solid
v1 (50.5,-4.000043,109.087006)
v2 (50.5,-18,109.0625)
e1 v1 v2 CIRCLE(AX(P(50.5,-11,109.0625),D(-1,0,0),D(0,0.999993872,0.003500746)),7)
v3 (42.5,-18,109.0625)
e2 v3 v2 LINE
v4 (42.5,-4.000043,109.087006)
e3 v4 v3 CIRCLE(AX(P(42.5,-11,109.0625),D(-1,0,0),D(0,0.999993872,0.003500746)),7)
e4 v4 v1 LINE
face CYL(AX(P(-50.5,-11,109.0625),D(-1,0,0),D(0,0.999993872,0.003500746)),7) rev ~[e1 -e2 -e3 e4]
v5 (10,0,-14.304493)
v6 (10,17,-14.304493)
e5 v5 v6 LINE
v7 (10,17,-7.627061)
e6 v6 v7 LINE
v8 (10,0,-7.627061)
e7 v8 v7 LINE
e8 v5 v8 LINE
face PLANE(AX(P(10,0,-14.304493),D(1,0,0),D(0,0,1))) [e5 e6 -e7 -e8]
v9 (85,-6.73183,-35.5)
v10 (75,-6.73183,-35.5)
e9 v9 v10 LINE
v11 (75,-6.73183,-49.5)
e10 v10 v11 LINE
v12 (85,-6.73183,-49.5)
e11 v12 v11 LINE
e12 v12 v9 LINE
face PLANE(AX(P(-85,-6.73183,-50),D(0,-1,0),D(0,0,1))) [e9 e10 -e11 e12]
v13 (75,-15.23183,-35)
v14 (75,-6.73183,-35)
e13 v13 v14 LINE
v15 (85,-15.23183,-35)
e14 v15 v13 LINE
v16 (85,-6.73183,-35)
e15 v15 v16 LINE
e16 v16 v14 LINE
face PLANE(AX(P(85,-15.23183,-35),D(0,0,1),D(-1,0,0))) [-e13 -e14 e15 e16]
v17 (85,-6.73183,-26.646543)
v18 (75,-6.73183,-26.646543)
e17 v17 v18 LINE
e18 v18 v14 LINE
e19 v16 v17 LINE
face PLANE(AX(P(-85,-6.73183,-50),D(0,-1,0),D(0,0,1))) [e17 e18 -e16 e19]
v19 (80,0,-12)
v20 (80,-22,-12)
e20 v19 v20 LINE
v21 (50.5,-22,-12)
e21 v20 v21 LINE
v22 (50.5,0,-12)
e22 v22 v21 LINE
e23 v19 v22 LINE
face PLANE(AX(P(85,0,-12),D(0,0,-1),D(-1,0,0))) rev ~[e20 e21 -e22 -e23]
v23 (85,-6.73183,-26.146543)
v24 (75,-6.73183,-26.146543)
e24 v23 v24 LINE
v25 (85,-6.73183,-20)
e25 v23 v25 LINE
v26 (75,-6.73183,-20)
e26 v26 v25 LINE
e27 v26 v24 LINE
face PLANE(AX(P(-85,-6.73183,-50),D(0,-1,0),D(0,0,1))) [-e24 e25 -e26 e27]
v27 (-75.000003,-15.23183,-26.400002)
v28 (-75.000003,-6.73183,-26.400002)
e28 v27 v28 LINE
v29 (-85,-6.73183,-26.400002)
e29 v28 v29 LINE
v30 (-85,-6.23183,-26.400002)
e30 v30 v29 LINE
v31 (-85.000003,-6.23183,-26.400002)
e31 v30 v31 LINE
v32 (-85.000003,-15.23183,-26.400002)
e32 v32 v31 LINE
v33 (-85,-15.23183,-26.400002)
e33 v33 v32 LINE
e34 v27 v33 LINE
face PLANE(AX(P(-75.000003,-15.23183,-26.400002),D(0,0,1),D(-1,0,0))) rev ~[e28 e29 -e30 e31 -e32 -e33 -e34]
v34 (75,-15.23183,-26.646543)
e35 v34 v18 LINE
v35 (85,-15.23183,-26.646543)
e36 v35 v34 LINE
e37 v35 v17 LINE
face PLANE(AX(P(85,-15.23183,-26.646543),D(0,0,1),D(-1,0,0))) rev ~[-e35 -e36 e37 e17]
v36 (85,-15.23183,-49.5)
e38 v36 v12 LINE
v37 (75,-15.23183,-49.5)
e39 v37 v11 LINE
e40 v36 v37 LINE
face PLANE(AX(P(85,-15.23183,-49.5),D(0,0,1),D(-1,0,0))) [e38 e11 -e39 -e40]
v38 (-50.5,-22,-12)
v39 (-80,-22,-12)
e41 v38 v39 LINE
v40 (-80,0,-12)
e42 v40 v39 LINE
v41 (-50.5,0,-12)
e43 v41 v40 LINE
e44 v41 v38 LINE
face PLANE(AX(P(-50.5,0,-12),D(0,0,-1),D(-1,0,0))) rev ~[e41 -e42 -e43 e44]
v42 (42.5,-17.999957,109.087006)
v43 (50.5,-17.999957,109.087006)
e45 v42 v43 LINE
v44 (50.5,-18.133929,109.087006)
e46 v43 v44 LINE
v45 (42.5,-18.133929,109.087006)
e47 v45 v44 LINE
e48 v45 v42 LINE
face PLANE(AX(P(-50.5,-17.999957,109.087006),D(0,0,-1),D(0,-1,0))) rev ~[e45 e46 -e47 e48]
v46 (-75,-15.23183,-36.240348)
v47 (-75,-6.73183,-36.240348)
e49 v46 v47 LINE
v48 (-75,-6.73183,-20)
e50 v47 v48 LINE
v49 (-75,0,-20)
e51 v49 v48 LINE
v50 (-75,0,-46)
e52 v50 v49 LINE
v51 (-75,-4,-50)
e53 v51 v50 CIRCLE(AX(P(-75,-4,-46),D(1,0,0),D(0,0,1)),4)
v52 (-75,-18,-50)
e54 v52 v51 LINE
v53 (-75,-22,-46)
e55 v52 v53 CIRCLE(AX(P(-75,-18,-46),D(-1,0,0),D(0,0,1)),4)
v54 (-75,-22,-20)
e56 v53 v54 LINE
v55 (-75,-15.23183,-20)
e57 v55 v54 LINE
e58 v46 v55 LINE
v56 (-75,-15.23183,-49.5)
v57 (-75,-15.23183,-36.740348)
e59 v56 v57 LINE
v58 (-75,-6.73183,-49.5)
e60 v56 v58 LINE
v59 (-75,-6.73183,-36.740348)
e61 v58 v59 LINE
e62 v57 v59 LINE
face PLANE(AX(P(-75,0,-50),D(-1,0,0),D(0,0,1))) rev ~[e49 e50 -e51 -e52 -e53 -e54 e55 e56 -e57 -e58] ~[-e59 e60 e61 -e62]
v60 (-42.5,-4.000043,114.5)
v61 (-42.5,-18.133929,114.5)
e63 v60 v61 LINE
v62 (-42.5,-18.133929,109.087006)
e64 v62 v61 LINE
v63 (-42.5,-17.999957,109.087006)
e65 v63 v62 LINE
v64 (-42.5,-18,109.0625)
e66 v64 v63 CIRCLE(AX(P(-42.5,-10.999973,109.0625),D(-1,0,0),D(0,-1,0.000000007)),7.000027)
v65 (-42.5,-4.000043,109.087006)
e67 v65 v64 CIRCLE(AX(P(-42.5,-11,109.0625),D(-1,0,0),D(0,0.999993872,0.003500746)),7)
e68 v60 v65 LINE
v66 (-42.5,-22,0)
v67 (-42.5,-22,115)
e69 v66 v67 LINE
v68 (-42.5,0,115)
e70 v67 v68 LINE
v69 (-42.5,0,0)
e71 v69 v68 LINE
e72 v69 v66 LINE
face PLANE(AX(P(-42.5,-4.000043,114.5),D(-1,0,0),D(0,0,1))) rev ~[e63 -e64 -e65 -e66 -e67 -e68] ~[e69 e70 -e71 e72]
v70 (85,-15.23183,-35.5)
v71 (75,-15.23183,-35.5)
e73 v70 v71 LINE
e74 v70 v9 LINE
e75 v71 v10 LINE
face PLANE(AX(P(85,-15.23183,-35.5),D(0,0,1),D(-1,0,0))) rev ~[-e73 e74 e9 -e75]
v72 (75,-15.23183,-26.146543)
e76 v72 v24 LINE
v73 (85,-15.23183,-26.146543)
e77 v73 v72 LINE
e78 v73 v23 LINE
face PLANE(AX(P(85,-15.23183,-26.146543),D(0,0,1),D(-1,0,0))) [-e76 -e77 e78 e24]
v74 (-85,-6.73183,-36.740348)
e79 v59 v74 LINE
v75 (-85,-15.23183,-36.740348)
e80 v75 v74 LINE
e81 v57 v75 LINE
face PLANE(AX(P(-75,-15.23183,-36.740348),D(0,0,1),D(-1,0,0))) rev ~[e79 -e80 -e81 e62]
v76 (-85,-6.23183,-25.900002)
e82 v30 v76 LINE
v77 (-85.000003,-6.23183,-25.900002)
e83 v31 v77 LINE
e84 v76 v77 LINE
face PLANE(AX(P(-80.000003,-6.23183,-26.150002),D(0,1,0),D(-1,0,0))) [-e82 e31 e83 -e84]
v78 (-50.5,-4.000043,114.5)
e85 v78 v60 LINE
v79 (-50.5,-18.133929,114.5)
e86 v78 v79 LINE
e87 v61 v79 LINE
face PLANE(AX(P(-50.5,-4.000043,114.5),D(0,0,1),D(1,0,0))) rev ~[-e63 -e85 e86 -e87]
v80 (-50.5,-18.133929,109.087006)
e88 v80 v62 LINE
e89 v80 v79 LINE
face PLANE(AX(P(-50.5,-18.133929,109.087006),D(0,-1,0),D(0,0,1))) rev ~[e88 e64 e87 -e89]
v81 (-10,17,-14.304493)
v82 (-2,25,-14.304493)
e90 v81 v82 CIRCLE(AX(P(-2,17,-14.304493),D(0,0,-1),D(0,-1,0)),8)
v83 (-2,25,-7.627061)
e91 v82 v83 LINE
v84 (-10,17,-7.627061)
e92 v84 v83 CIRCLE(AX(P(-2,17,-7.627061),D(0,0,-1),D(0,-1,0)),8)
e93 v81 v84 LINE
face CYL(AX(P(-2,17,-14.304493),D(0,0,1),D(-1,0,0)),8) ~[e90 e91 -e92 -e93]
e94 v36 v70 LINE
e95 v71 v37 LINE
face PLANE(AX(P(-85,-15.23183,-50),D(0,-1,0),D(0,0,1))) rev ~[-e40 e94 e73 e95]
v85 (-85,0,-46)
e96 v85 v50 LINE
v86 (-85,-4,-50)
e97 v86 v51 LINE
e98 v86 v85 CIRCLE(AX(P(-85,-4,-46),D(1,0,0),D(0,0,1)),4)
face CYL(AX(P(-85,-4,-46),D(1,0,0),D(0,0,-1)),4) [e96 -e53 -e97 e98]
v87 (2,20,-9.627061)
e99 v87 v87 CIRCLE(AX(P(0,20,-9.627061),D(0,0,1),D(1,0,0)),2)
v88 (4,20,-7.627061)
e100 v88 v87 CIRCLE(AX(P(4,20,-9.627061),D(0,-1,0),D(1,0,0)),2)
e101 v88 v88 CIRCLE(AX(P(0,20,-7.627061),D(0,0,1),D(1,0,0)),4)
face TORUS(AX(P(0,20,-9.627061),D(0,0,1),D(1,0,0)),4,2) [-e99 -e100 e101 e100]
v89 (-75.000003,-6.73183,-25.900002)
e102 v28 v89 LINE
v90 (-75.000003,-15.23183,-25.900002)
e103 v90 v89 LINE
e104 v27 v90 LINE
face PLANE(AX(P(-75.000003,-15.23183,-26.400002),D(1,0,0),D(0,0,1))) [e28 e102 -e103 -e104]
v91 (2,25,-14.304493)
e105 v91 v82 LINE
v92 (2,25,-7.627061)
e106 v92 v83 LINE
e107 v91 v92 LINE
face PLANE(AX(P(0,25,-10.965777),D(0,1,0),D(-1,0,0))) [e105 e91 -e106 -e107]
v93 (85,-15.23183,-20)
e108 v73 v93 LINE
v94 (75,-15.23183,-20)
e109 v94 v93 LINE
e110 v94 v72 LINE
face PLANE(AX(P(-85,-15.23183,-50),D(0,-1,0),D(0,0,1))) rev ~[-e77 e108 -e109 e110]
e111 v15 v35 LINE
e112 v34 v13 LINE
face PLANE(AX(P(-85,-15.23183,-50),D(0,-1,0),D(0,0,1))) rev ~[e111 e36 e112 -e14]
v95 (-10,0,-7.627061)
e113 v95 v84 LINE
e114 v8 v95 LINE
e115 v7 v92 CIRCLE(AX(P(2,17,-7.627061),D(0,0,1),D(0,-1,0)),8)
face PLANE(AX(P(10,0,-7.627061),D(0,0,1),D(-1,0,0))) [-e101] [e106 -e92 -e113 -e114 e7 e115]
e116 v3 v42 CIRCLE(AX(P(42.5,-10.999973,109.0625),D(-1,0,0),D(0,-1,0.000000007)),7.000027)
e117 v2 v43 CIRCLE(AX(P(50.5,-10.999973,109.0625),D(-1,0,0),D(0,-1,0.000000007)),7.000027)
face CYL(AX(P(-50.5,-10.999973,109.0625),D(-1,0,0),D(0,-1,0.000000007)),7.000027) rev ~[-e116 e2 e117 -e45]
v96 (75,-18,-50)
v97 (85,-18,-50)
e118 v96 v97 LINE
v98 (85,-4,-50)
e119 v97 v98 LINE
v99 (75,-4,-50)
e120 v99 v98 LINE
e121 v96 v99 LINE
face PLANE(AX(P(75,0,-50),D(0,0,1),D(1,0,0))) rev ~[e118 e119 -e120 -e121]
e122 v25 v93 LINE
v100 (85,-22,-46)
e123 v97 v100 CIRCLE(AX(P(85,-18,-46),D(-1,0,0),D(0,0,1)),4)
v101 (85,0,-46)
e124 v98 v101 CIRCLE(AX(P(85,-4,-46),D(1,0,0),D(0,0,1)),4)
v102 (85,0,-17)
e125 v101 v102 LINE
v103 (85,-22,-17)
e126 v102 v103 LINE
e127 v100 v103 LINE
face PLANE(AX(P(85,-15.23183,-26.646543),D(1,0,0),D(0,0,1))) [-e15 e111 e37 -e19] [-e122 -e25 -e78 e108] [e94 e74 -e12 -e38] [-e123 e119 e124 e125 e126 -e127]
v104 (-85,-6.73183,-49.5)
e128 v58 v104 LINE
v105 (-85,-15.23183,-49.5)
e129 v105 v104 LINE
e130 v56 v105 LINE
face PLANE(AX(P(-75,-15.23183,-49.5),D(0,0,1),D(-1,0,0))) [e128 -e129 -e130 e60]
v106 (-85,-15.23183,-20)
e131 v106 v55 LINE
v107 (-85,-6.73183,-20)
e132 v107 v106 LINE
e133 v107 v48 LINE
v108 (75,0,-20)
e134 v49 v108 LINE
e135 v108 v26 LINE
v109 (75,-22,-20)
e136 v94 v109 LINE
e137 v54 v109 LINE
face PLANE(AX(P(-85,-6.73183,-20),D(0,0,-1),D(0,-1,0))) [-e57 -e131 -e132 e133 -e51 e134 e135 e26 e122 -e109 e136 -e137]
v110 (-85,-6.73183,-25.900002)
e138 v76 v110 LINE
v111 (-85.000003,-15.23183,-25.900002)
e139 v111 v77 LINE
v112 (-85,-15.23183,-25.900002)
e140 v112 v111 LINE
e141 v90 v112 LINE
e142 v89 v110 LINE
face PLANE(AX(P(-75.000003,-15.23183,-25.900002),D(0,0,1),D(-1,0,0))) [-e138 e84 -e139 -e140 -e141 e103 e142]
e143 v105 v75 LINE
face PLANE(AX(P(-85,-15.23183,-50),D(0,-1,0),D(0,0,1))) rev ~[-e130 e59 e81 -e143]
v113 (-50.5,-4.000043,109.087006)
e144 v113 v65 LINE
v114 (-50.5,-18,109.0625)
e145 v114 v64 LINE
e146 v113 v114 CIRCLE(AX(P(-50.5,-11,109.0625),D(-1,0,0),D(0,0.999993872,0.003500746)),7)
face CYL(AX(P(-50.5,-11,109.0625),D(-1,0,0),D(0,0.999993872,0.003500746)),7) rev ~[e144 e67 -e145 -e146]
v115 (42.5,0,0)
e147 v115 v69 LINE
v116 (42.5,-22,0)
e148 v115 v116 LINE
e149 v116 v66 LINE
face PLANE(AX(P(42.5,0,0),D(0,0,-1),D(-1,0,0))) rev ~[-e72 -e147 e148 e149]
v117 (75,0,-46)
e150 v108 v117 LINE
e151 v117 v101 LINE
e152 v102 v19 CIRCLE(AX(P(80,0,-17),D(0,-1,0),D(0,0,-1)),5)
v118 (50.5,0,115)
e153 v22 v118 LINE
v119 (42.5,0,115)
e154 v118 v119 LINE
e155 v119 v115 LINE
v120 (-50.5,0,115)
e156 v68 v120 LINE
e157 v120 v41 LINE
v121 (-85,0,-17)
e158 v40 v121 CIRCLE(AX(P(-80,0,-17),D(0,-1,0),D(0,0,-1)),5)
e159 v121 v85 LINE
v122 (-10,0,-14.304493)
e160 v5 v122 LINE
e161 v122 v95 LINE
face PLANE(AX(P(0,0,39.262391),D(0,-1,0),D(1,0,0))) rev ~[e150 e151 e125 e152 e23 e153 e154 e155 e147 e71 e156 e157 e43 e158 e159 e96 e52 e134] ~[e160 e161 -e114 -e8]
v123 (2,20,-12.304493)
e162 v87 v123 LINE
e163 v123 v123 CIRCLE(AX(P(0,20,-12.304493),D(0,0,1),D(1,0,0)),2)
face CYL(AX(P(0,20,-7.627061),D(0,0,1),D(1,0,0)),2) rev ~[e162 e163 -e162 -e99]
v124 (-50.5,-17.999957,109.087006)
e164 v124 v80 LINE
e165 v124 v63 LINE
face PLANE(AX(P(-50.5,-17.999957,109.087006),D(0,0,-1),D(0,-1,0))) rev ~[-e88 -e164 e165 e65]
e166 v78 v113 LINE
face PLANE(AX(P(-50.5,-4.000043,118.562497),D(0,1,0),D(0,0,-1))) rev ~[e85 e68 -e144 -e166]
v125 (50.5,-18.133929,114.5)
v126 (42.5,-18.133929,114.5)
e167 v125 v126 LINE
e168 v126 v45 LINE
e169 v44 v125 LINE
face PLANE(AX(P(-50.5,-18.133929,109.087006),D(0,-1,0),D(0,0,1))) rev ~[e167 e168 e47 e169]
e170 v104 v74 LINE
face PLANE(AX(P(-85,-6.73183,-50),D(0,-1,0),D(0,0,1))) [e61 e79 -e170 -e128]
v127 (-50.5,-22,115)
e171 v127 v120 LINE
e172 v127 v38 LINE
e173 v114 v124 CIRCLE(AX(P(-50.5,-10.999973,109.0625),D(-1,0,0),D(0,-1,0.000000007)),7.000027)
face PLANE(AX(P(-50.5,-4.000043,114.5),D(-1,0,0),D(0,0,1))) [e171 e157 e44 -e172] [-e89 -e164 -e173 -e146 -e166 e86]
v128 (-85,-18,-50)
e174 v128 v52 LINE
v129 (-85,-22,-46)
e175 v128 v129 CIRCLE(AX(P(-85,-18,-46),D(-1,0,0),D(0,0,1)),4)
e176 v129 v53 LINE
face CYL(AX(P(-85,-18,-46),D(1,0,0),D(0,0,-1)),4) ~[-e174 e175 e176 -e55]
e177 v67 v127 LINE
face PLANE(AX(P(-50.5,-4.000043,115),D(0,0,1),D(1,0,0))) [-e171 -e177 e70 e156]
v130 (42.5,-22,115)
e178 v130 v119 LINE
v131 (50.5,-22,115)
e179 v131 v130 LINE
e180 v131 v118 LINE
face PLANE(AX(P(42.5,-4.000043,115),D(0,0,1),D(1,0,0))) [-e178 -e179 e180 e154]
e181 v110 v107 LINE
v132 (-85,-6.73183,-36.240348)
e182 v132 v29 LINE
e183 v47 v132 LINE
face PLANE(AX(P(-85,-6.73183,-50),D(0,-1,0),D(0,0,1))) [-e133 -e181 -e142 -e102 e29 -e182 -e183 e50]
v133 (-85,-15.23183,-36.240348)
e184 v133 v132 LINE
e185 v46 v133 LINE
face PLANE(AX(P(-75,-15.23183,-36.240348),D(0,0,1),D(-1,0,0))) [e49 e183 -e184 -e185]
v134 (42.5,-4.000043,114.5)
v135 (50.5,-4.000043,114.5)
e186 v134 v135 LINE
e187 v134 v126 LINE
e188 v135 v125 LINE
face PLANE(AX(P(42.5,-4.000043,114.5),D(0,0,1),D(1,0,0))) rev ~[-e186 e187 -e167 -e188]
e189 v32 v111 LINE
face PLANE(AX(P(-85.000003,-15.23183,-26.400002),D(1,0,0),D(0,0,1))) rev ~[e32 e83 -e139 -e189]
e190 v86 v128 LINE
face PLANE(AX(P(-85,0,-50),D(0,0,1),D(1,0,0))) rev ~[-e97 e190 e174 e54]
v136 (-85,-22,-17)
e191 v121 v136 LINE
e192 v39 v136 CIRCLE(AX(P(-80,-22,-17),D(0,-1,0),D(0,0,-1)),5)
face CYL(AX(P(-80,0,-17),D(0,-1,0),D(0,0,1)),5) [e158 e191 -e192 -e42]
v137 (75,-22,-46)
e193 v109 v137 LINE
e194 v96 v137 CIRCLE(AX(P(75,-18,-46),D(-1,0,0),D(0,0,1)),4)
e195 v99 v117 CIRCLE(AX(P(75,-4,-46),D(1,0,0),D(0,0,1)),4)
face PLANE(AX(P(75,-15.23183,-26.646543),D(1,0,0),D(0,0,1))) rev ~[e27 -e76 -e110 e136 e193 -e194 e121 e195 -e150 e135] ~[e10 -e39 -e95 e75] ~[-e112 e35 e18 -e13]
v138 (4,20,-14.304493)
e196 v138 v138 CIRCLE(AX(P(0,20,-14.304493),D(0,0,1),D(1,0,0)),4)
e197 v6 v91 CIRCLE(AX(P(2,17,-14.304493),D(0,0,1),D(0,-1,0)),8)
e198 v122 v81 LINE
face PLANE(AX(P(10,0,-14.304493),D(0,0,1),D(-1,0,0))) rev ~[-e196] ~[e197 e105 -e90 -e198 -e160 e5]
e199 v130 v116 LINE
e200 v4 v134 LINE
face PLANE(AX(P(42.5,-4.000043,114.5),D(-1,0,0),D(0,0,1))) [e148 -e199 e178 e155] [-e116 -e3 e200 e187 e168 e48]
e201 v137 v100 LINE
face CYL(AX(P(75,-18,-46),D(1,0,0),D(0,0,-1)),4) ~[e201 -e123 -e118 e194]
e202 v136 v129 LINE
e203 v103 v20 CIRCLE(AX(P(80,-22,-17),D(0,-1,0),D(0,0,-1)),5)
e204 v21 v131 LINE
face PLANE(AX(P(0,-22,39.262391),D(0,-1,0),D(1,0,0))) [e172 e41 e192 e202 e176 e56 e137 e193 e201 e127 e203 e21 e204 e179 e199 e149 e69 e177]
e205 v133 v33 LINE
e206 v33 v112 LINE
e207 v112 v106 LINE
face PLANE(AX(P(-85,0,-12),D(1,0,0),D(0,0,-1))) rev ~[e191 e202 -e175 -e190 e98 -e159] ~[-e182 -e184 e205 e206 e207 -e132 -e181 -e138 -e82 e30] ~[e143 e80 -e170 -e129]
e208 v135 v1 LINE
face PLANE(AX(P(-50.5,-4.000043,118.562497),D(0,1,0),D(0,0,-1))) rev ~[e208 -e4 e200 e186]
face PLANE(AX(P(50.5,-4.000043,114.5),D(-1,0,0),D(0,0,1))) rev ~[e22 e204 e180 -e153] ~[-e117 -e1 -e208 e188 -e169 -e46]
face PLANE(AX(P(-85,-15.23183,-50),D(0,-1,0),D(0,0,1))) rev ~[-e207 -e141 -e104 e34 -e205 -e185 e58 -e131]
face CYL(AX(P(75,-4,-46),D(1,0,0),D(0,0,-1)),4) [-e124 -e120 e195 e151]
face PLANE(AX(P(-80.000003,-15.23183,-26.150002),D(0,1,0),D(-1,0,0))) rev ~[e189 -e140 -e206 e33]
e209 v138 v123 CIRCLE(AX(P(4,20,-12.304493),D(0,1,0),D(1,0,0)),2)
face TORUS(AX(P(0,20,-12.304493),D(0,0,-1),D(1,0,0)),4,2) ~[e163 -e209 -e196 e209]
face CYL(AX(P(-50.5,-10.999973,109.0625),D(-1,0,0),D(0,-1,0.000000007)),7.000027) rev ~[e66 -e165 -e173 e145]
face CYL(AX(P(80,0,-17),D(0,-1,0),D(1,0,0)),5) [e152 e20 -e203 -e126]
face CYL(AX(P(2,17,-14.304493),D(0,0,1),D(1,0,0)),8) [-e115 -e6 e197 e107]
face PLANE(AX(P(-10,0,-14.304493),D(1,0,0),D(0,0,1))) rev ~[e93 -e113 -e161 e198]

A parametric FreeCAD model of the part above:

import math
import FreeCAD as App
import Part
import Sketcher

V = App.Vector
Q = App.Units.Quantity


def edges_at(feature, points):
    """Names of the edges that pass closest to the given points."""
    edges = feature.Shape.Edges
    near = lambda p: min(range(len(edges)), key=lambda i: edges[i].distToShape(Part.Vertex(*p))[0])
    return sorted({f"Edge{near(p) + 1}" for p in points})

doc = App.newDocument("Part")
body = doc.addObject("PartDesign::Body", "Body")

sketch1 = body.newObject("Sketcher::SketchObject", "Sketch")
sketch1.AttachmentSupport = (doc.getObject("XZ_Plane"), [""])
sketch1.MapMode = "FlatFace"
sketch1.addGeometry(Part.LineSegment(V(-42, 0, 0), V(-42, 115, 0)), False)
sketch1.addGeometry(Part.LineSegment(V(-42, 115, 0), V(-50, 115, 0)), False)
sketch1.addGeometry(Part.LineSegment(V(-50, 115, 0), V(-50, -12, 0)), False)
sketch1.addGeometry(Part.LineSegment(V(-50, -12, 0), V(-85, -12, 0)), False)
sketch1.addGeometry(Part.LineSegment(V(-85, -12, 0), V(-85, -50, 0)), False)
sketch1.addGeometry(Part.LineSegment(V(-85, -50, 0), V(-75, -50, 0)), False)
sketch1.addGeometry(Part.LineSegment(V(-75, -50, 0), V(-75, -20, 0)), False)
sketch1.addGeometry(Part.LineSegment(V(-75, -20, 0), V(75, -20, 0)), False)
sketch1.addGeometry(Part.LineSegment(V(75, -20, 0), V(75, -50, 0)), False)
sketch1.addGeometry(Part.LineSegment(V(75, -50, 0), V(85, -50, 0)), False)
sketch1.addGeometry(Part.LineSegment(V(85, -50, 0), V(85, -12, 0)), False)
sketch1.addGeometry(Part.LineSegment(V(85, -12, 0), V(50, -12, 0)), False)
sketch1.addGeometry(Part.LineSegment(V(50, -12, 0), V(50, 115, 0)), False)
sketch1.addGeometry(Part.LineSegment(V(50, 115, 0), V(42, 115, 0)), False)
sketch1.addGeometry(Part.LineSegment(V(42, 115, 0), V(42, 0, 0)), False)
sketch1.addGeometry(Part.LineSegment(V(42, 0, 0), V(-42, 0, 0)), False)
sketch1.addConstraint(Sketcher.Constraint("Coincident", 0, 2, 1, 1))
sketch1.addConstraint(Sketcher.Constraint("Coincident", 1, 2, 2, 1))
sketch1.addConstraint(Sketcher.Constraint("Coincident", 2, 2, 3, 1))
sketch1.addConstraint(Sketcher.Constraint("Coincident", 3, 2, 4, 1))
sketch1.addConstraint(Sketcher.Constraint("Coincident", 4, 2, 5, 1))
sketch1.addConstraint(Sketcher.Constraint("Coincident", 5, 2, 6, 1))
sketch1.addConstraint(Sketcher.Constraint("Coincident", 6, 2, 7, 1))
sketch1.addConstraint(Sketcher.Constraint("Coincident", 7, 2, 8, 1))
sketch1.addConstraint(Sketcher.Constraint("Coincident", 8, 2, 9, 1))
sketch1.addConstraint(Sketcher.Constraint("Coincident", 9, 2, 10, 1))
sketch1.addConstraint(Sketcher.Constraint("Coincident", 10, 2, 11, 1))
sketch1.addConstraint(Sketcher.Constraint("Coincident", 11, 2, 12, 1))
sketch1.addConstraint(Sketcher.Constraint("Coincident", 12, 2, 13, 1))
sketch1.addConstraint(Sketcher.Constraint("Coincident", 13, 2, 14, 1))
sketch1.addConstraint(Sketcher.Constraint("Coincident", 14, 2, 15, 1))
sketch1.addConstraint(Sketcher.Constraint("Coincident", 15, 2, 0, 1))
sketch1.addConstraint(Sketcher.Constraint("Vertical", 0))
sketch1.addConstraint(Sketcher.Constraint("Horizontal", 1))
sketch1.addConstraint(Sketcher.Constraint("Vertical", 2))
sketch1.addConstraint(Sketcher.Constraint("Horizontal", 3))
sketch1.addConstraint(Sketcher.Constraint("Vertical", 4))
sketch1.addConstraint(Sketcher.Constraint("Horizontal", 5))
sketch1.addConstraint(Sketcher.Constraint("Vertical", 6))
sketch1.addConstraint(Sketcher.Constraint("Horizontal", 7))
sketch1.addConstraint(Sketcher.Constraint("Vertical", 8))
sketch1.addConstraint(Sketcher.Constraint("Horizontal", 9))
sketch1.addConstraint(Sketcher.Constraint("Vertical", 10))
sketch1.addConstraint(Sketcher.Constraint("Horizontal", 11))
sketch1.addConstraint(Sketcher.Constraint("Vertical", 12))
sketch1.addConstraint(Sketcher.Constraint("Horizontal", 13))
sketch1.addConstraint(Sketcher.Constraint("Vertical", 14))
sketch1.addConstraint(Sketcher.Constraint("Horizontal", 15))
sketch1.addConstraint(Sketcher.Constraint("Symmetric", 14, 2, 15, 2, -1, 1))
sketch1.addConstraint(Sketcher.Constraint("Symmetric", 5, 2, 8, 2, -2))
sketch1.addConstraint(Sketcher.Constraint("Symmetric", 3, 2, 10, 2, -2))
sketch1.addConstraint(Sketcher.Constraint("Symmetric", 1, 2, 12, 2, -2))
sketch1.addConstraint(Sketcher.Constraint("DistanceX", 1, 2, 1, 1, Q("8 mm")))
sketch1.addConstraint(Sketcher.Constraint("DistanceX", 5, 1, 5, 2, Q("10 mm")))
sketch1.addConstraint(Sketcher.Constraint("DistanceX", 7, 1, 7, 2, Q("150 mm")))
sketch1.addConstraint(Sketcher.Constraint("DistanceX", 15, 2, 15, 1, Q("85 mm")))
sketch1.addConstraint(Sketcher.Constraint("DistanceY", 0, 1, 0, 2, Q("115 mm")))
sketch1.addConstraint(Sketcher.Constraint("DistanceY", 2, 2, 2, 1, Q("127 mm")))
sketch1.addConstraint(Sketcher.Constraint("DistanceY", 4, 2, 4, 1, Q("38 mm")))
sketch1.addConstraint(Sketcher.Constraint("DistanceY", 6, 1, 6, 2, Q("30 mm")))
pad1 = body.newObject("PartDesign::Pad", "Pad")
pad1.Profile = sketch1
pad1.Length = 22
doc.recompute()

fillet = body.newObject("PartDesign::Fillet", "Fillet")
fillet.Base = (pad1, edges_at(pad1, [(-85, -11, -12), (85, -11, -12)]))
fillet.Radius = 5

sketch2 = body.newObject("Sketcher::SketchObject", "Sketch001")
sketch2.AttachmentSupport = (doc.getObject("YZ_Plane"), [""])
sketch2.MapMode = "FlatFace"
sketch2.AttachmentOffset = App.Placement(V(0, 0, -50.5), App.Rotation())
sketch2.addGeometry(Part.LineSegment(V(-4, 118.562, 0), V(-4, 109.087, 0)), False)
sketch2.addGeometry(Part.ArcOfCircle(Part.Circle(V(-11, 109.063, 0), V(0, 0, 1), 7), math.radians(180), math.radians(360)), False)
sketch2.addGeometry(Part.ArcOfCircle(Part.Circle(V(-11, 109.063, 0), V(0, 0, 1), 7), math.radians(179.8), math.radians(180)), False)
sketch2.addGeometry(Part.LineSegment(V(-18, 109.087, 0), V(-18.134, 109.087, 0)), False)
sketch2.addGeometry(Part.LineSegment(V(-18.134, 109.087, 0), V(-18.134, 118.562, 0)), False)
sketch2.addGeometry(Part.LineSegment(V(-18.134, 118.562, 0), V(-4, 118.562, 0)), False)
sketch2.addGeometry(Part.LineSegment(V(-14.708, 115, 0), V(-7.292, 115, 0)), False)
sketch2.addGeometry(Part.ArcOfCircle(Part.Circle(V(-11, 109.063, 0), V(0, 0, 1), 7), math.radians(58), math.radians(122)), False)
sketch2.addConstraint(Sketcher.Constraint("Coincident", 0, 2, 1, 2))
sketch2.addConstraint(Sketcher.Constraint("Tangent", 1, 1, 2, 2))
sketch2.addConstraint(Sketcher.Constraint("Coincident", 2, 1, 3, 1))
sketch2.addConstraint(Sketcher.Constraint("Coincident", 3, 2, 4, 1))
sketch2.addConstraint(Sketcher.Constraint("Coincident", 4, 2, 5, 1))
sketch2.addConstraint(Sketcher.Constraint("Coincident", 5, 2, 0, 1))
sketch2.addConstraint(Sketcher.Constraint("Coincident", 6, 1, 7, 2))
sketch2.addConstraint(Sketcher.Constraint("Coincident", 7, 1, 6, 2))
sketch2.addConstraint(Sketcher.Constraint("Vertical", 0))
sketch2.addConstraint(Sketcher.Constraint("Horizontal", 3))
sketch2.addConstraint(Sketcher.Constraint("Vertical", 4))
sketch2.addConstraint(Sketcher.Constraint("Horizontal", 5))
sketch2.addConstraint(Sketcher.Constraint("Horizontal", 6))
sketch2.addConstraint(Sketcher.Constraint("Coincident", 7, 3, 1, 3))
sketch2.addConstraint(Sketcher.Constraint("Equal", 1, 7))
sketch2.addConstraint(Sketcher.Constraint("Horizontal", 7, 3, 1, 1))
sketch2.addConstraint(Sketcher.Constraint("Horizontal", 0, 2, 2, 1))
sketch2.addConstraint(Sketcher.Constraint("Radius", 1, Q("7 mm")))
sketch2.addConstraint(Sketcher.Constraint("DistanceX", 1, 3, -1, 1, Q("11 mm")))
sketch2.addConstraint(Sketcher.Constraint("DistanceY", -1, 1, 6, 1, Q("115 mm")))
sketch2.addConstraint(Sketcher.Constraint("Radius", 2, Q("7.000027 mm")))
sketch2.addConstraint(Sketcher.Constraint("DistanceX", 3, 2, 3, 1, Q("0.133972 mm")))
sketch2.addConstraint(Sketcher.Constraint("DistanceY", 0, 2, 0, 1, Q("9.475492 mm")))
sketch2.addConstraint(Sketcher.Constraint("DistanceY", -1, 1, 1, 3, Q("109.0625 mm")))
sketch2.addConstraint(Sketcher.Constraint("DistanceY", -1, 1, 0, 2, Q("109.087006 mm")))
pocket1 = body.newObject("PartDesign::Pocket", "Pocket")
pocket1.Profile = sketch2
pocket1.Length = 180
pocket1.Reversed = True

sketch3 = body.newObject("Sketcher::SketchObject", "Sketch002")
sketch3.AttachmentSupport = (doc.getObject("XZ_Plane"), [""])
sketch3.MapMode = "FlatFace"
sketch3.AttachmentOffset = App.Placement(V(0, 0, 4.000043), App.Rotation())
sketch3.addGeometry(Part.LineSegment(V(-50.5, 115, 0), V(-50.5, 114.5, 0)), False)
sketch3.addGeometry(Part.LineSegment(V(-50.5, 114.5, 0), V(-42.5, 114.5, 0)), False)
sketch3.addGeometry(Part.LineSegment(V(-42.5, 114.5, 0), V(-42.5, 115, 0)), False)
sketch3.addGeometry(Part.LineSegment(V(-42.5, 115, 0), V(-50.5, 115, 0)), False)
sketch3.addConstraint(Sketcher.Constraint("Coincident", 0, 2, 1, 1))
sketch3.addConstraint(Sketcher.Constraint("Coincident", 1, 2, 2, 1))
sketch3.addConstraint(Sketcher.Constraint("Coincident", 2, 2, 3, 1))
sketch3.addConstraint(Sketcher.Constraint("Coincident", 3, 2, 0, 1))
sketch3.addConstraint(Sketcher.Constraint("Vertical", 0))
sketch3.addConstraint(Sketcher.Constraint("Horizontal", 1))
sketch3.addConstraint(Sketcher.Constraint("Vertical", 2))
sketch3.addConstraint(Sketcher.Constraint("Horizontal", 3))
sketch3.addConstraint(Sketcher.Constraint("DistanceX", 1, 1, 1, 2, Q("8 mm")))
sketch3.addConstraint(Sketcher.Constraint("DistanceY", 0, 2, 0, 1, Q("0.5 mm")))
sketch3.addConstraint(Sketcher.Constraint("DistanceY", -1, 1, 2, 2, Q("115 mm")))
sketch3.addConstraint(Sketcher.Constraint("DistanceX", 0, 2, -1, 1, Q("50.5 mm")))
pad2 = body.newObject("PartDesign::Pad", "Pad001")
pad2.Profile = sketch3
pad2.Length = 15

sketch4 = body.newObject("Sketcher::SketchObject", "Sketch003")
sketch4.AttachmentSupport = (doc.getObject("XZ_Plane"), [""])
sketch4.MapMode = "FlatFace"
sketch4.AttachmentOffset = App.Placement(V(0, 0, 4.000043), App.Rotation())
sketch4.addGeometry(Part.LineSegment(V(42.5, 115, 0), V(42.5, 114.5, 0)), False)
sketch4.addGeometry(Part.LineSegment(V(42.5, 114.5, 0), V(50.5, 114.5, 0)), False)
sketch4.addGeometry(Part.LineSegment(V(50.5, 114.5, 0), V(50.5, 115, 0)), False)
sketch4.addGeometry(Part.LineSegment(V(50.5, 115, 0), V(42.5, 115, 0)), False)
sketch4.addConstraint(Sketcher.Constraint("Coincident", 0, 2, 1, 1))
sketch4.addConstraint(Sketcher.Constraint("Coincident", 1, 2, 2, 1))
sketch4.addConstraint(Sketcher.Constraint("Coincident", 2, 2, 3, 1))
sketch4.addConstraint(Sketcher.Constraint("Coincident", 3, 2, 0, 1))
sketch4.addConstraint(Sketcher.Constraint("Vertical", 0))
sketch4.addConstraint(Sketcher.Constraint("Horizontal", 1))
sketch4.addConstraint(Sketcher.Constraint("Vertical", 2))
sketch4.addConstraint(Sketcher.Constraint("Horizontal", 3))
sketch4.addConstraint(Sketcher.Constraint("DistanceX", 1, 1, 1, 2, Q("8 mm")))
sketch4.addConstraint(Sketcher.Constraint("DistanceY", 0, 2, 0, 1, Q("0.5 mm")))
sketch4.addConstraint(Sketcher.Constraint("DistanceY", -1, 1, 2, 2, Q("115 mm")))
sketch4.addConstraint(Sketcher.Constraint("DistanceX", -1, 1, 0, 2, Q("42.5 mm")))
pad3 = body.newObject("PartDesign::Pad", "Pad002")
pad3.Profile = sketch4
pad3.Length = 15
doc.recompute()

fillet2 = body.newObject("PartDesign::Fillet", "Fillet001")
fillet2.Base = (pad3, edges_at(pad3, [
    (-80, -22, -50),
    (-80, 0, -50),
    (80, -22, -50),
    (80, 0, -50),
]))
fillet2.Radius = 4

sketch5 = body.newObject("Sketcher::SketchObject", "Sketch004")
sketch5.AttachmentSupport = (doc.getObject("YZ_Plane"), [""])
sketch5.MapMode = "FlatFace"
sketch5.AttachmentOffset = App.Placement(V(0, 0, -85), App.Rotation())
sketch5.addGeometry(Part.LineSegment(V(-7, -20, 0), V(-7, -50, 0)), False)
sketch5.addGeometry(Part.LineSegment(V(-7, -50, 0), V(-15, -50, 0)), False)
sketch5.addGeometry(Part.LineSegment(V(-15, -50, 0), V(-15, -20, 0)), False)
sketch5.addGeometry(Part.LineSegment(V(-15, -20, 0), V(-7, -20, 0)), False)
sketch5.addConstraint(Sketcher.Constraint("Coincident", 0, 2, 1, 1))
sketch5.addConstraint(Sketcher.Constraint("Coincident", 1, 2, 2, 1))
sketch5.addConstraint(Sketcher.Constraint("Coincident", 2, 2, 3, 1))
sketch5.addConstraint(Sketcher.Constraint("Coincident", 3, 2, 0, 1))
sketch5.addConstraint(Sketcher.Constraint("Vertical", 0))
sketch5.addConstraint(Sketcher.Constraint("Horizontal", 1))
sketch5.addConstraint(Sketcher.Constraint("Vertical", 2))
sketch5.addConstraint(Sketcher.Constraint("Horizontal", 3))
sketch5.addConstraint(Sketcher.Constraint("DistanceY", 0, 2, 0, 1, Q("30 mm")))
sketch5.addConstraint(Sketcher.Constraint("DistanceX", 1, 2, 1, 1, Q("8.5 mm")))
sketch5.addConstraint(Sketcher.Constraint("DistanceY", 0, 2, -1, 1, Q("50 mm")))
sketch5.addConstraint(Sketcher.Constraint("DistanceX", 0, 2, -1, 1, Q("6.73183 mm")))
pocket2 = body.newObject("PartDesign::Pocket", "Pocket001")
pocket2.Profile = sketch5
pocket2.Length = 195
pocket2.Reversed = True

sketch6 = body.newObject("Sketcher::SketchObject", "Sketch005")
sketch6.AttachmentSupport = (doc.getObject("XZ_Plane"), [""])
sketch6.MapMode = "FlatFace"
sketch6.addGeometry(Part.LineSegment(V(10, -8, 0), V(10, -14, 0)), False)
sketch6.addGeometry(Part.LineSegment(V(10, -14, 0), V(-10, -14, 0)), False)
sketch6.addGeometry(Part.LineSegment(V(-10, -14, 0), V(-10, -8, 0)), False)
sketch6.addGeometry(Part.LineSegment(V(-10, -8, 0), V(10, -8, 0)), False)
sketch6.addConstraint(Sketcher.Constraint("Coincident", 0, 2, 1, 1))
sketch6.addConstraint(Sketcher.Constraint("Coincident", 1, 2, 2, 1))
sketch6.addConstraint(Sketcher.Constraint("Coincident", 2, 2, 3, 1))
sketch6.addConstraint(Sketcher.Constraint("Coincident", 3, 2, 0, 1))
sketch6.addConstraint(Sketcher.Constraint("Vertical", 0))
sketch6.addConstraint(Sketcher.Constraint("Horizontal", 1))
sketch6.addConstraint(Sketcher.Constraint("Vertical", 2))
sketch6.addConstraint(Sketcher.Constraint("Horizontal", 3))
sketch6.addConstraint(Sketcher.Constraint("DistanceX", 1, 2, 1, 1, Q("20 mm")))
sketch6.addConstraint(Sketcher.Constraint("DistanceX", -1, 1, 0, 2, Q("10 mm")))
sketch6.addConstraint(Sketcher.Constraint("DistanceY", 0, 2, 0, 1, Q("6.677432 mm")))
sketch6.addConstraint(Sketcher.Constraint("DistanceY", 2, 2, -1, 1, Q("7.627061 mm")))
pad4 = body.newObject("PartDesign::Pad", "Pad003")
pad4.Profile = sketch6
pad4.Length = 25
pad4.Reversed = True
doc.recompute()

fillet3 = body.newObject("PartDesign::Fillet", "Fillet002")
fillet3.Base = (pad4, edges_at(pad4, [(10, 25, -10.966), (-10, 25, -10.966)]))
fillet3.Radius = 8

sketch7 = body.newObject("Sketcher::SketchObject", "Sketch006")
sketch7.AttachmentSupport = (doc.getObject("XY_Plane"), [""])
sketch7.MapMode = "FlatFace"
sketch7.AttachmentOffset = App.Placement(V(0, 0, -7.627061), App.Rotation())
sketch7.addGeometry(Part.Circle(V(0, 20, 0), V(0, 0, 1), 2), False)
sketch7.addConstraint(Sketcher.Constraint("PointOnObject", 0, 3, -2))
sketch7.addConstraint(Sketcher.Constraint("Diameter", 0, Q("4 mm")))
sketch7.addConstraint(Sketcher.Constraint("DistanceY", -1, 1, 0, 3, Q("20 mm")))
pocket3 = body.newObject("PartDesign::Pocket", "Pocket002")
pocket3.Profile = sketch7
pocket3.Length = 25
doc.recompute()

fillet4 = body.newObject("PartDesign::Fillet", "Fillet003")
fillet4.Base = (pocket3, edges_at(pocket3, [(-2, 20, -7.627), (-2, 20, -14.304)]))
fillet4.Radius = 2

sketch8 = body.newObject("Sketcher::SketchObject", "Sketch007")
sketch8.AttachmentSupport = (doc.getObject("XZ_Plane"), [""])
sketch8.MapMode = "FlatFace"
sketch8.AttachmentOffset = App.Placement(V(0, 0, 15.23183), App.Rotation())
sketch8.addGeometry(Part.LineSegment(V(85, -26.1, 0), V(85, -26.6, 0)), False)
sketch8.addGeometry(Part.LineSegment(V(85, -26.6, 0), V(75, -26.6, 0)), False)
sketch8.addGeometry(Part.LineSegment(V(75, -26.6, 0), V(75, -26.1, 0)), False)
sketch8.addGeometry(Part.LineSegment(V(75, -26.1, 0), V(85, -26.1, 0)), False)
sketch8.addGeometry(Part.LineSegment(V(85, -49.5, 0), V(85, -50, 0)), False)
sketch8.addGeometry(Part.LineSegment(V(85, -50, 0), V(75, -50, 0)), False)
sketch8.addGeometry(Part.LineSegment(V(75, -50, 0), V(75, -49.5, 0)), False)
sketch8.addGeometry(Part.LineSegment(V(75, -49.5, 0), V(85, -49.5, 0)), False)
sketch8.addGeometry(Part.LineSegment(V(85, -35, 0), V(85, -35.5, 0)), False)
sketch8.addGeometry(Part.LineSegment(V(85, -35.5, 0), V(75, -35.5, 0)), False)
sketch8.addGeometry(Part.LineSegment(V(75, -35.5, 0), V(75, -35, 0)), False)
sketch8.addGeometry(Part.LineSegment(V(75, -35, 0), V(85, -35, 0)), False)
sketch8.addConstraint(Sketcher.Constraint("Coincident", 0, 2, 1, 1))
sketch8.addConstraint(Sketcher.Constraint("Coincident", 1, 2, 2, 1))
sketch8.addConstraint(Sketcher.Constraint("Coincident", 2, 2, 3, 1))
sketch8.addConstraint(Sketcher.Constraint("Coincident", 3, 2, 0, 1))
sketch8.addConstraint(Sketcher.Constraint("Coincident", 4, 2, 5, 1))
sketch8.addConstraint(Sketcher.Constraint("Coincident", 5, 2, 6, 1))
sketch8.addConstraint(Sketcher.Constraint("Coincident", 6, 2, 7, 1))
sketch8.addConstraint(Sketcher.Constraint("Coincident", 7, 2, 4, 1))
sketch8.addConstraint(Sketcher.Constraint("Coincident", 8, 2, 9, 1))
sketch8.addConstraint(Sketcher.Constraint("Coincident", 9, 2, 10, 1))
sketch8.addConstraint(Sketcher.Constraint("Coincident", 10, 2, 11, 1))
sketch8.addConstraint(Sketcher.Constraint("Coincident", 11, 2, 8, 1))
sketch8.addConstraint(Sketcher.Constraint("Vertical", 0))
sketch8.addConstraint(Sketcher.Constraint("Horizontal", 1))
sketch8.addConstraint(Sketcher.Constraint("Vertical", 2))
sketch8.addConstraint(Sketcher.Constraint("Horizontal", 3))
sketch8.addConstraint(Sketcher.Constraint("Vertical", 4))
sketch8.addConstraint(Sketcher.Constraint("Horizontal", 5))
sketch8.addConstraint(Sketcher.Constraint("Vertical", 6))
sketch8.addConstraint(Sketcher.Constraint("Horizontal", 7))
sketch8.addConstraint(Sketcher.Constraint("Vertical", 8))
sketch8.addConstraint(Sketcher.Constraint("Horizontal", 9))
sketch8.addConstraint(Sketcher.Constraint("Vertical", 10))
sketch8.addConstraint(Sketcher.Constraint("Horizontal", 11))
sketch8.addConstraint(Sketcher.Constraint("Vertical", 3, 2, 4, 2))
sketch8.addConstraint(Sketcher.Constraint("Vertical", 2, 2, 5, 2))
sketch8.addConstraint(Sketcher.Constraint("Vertical", 7, 2, 8, 2))
sketch8.addConstraint(Sketcher.Constraint("Vertical", 6, 2, 9, 2))
sketch8.addConstraint(Sketcher.Constraint("Equal", 2, 4))
sketch8.addConstraint(Sketcher.Constraint("Equal", 6, 8))
sketch8.addConstraint(Sketcher.Constraint("DistanceX", 1, 2, 1, 1, Q("10 mm")))
sketch8.addConstraint(Sketcher.Constraint("DistanceY", 0, 2, 0, 1, Q("0.5 mm")))
sketch8.addConstraint(Sketcher.Constraint("DistanceX", -1, 1, 0, 2, Q("85 mm")))
sketch8.addConstraint(Sketcher.Constraint("DistanceY", 4, 2, -1, 1, Q("50 mm")))
sketch8.addConstraint(Sketcher.Constraint("DistanceY", 10, 2, -1, 1, Q("35 mm")))
sketch8.addConstraint(Sketcher.Constraint("DistanceY", 0, 2, -1, 1, Q("26.646543 mm")))
pad5 = body.newObject("PartDesign::Pad", "Pad004")
pad5.Profile = sketch8
pad5.Length = 10
pad5.Reversed = True

sketch9 = body.newObject("Sketcher::SketchObject", "Sketch008")
sketch9.AttachmentSupport = (doc.getObject("XZ_Plane"), [""])
sketch9.MapMode = "FlatFace"
sketch9.AttachmentOffset = App.Placement(V(0, 0, 15.23183), App.Rotation())
sketch9.addGeometry(Part.LineSegment(V(-75, -25.9, 0), V(-75, -26.4, 0)), False)
sketch9.addGeometry(Part.LineSegment(V(-75, -26.4, 0), V(-85, -26.4, 0)), False)
sketch9.addGeometry(Part.LineSegment(V(-85, -26.4, 0), V(-85, -25.9, 0)), False)
sketch9.addGeometry(Part.LineSegment(V(-85, -25.9, 0), V(-75, -25.9, 0)), False)
sketch9.addGeometry(Part.LineSegment(V(-75, -49.5, 0), V(-75, -50, 0)), False)
sketch9.addGeometry(Part.LineSegment(V(-75, -50, 0), V(-85, -50, 0)), False)
sketch9.addGeometry(Part.LineSegment(V(-85, -50, 0), V(-85, -49.5, 0)), False)
sketch9.addGeometry(Part.LineSegment(V(-85, -49.5, 0), V(-75, -49.5, 0)), False)
sketch9.addGeometry(Part.LineSegment(V(-75, -36.2, 0), V(-75, -36.7, 0)), False)
sketch9.addGeometry(Part.LineSegment(V(-75, -36.7, 0), V(-85, -36.7, 0)), False)
sketch9.addGeometry(Part.LineSegment(V(-85, -36.7, 0), V(-85, -36.2, 0)), False)
sketch9.addGeometry(Part.LineSegment(V(-85, -36.2, 0), V(-75, -36.2, 0)), False)
sketch9.addConstraint(Sketcher.Constraint("Coincident", 0, 2, 1, 1))
sketch9.addConstraint(Sketcher.Constraint("Coincident", 1, 2, 2, 1))
sketch9.addConstraint(Sketcher.Constraint("Coincident", 2, 2, 3, 1))
sketch9.addConstraint(Sketcher.Constraint("Coincident", 3, 2, 0, 1))
sketch9.addConstraint(Sketcher.Constraint("Coincident", 4, 2, 5, 1))
sketch9.addConstraint(Sketcher.Constraint("Coincident", 5, 2, 6, 1))
sketch9.addConstraint(Sketcher.Constraint("Coincident", 6, 2, 7, 1))
sketch9.addConstraint(Sketcher.Constraint("Coincident", 7, 2, 4, 1))
sketch9.addConstraint(Sketcher.Constraint("Coincident", 8, 2, 9, 1))
sketch9.addConstraint(Sketcher.Constraint("Coincident", 9, 2, 10, 1))
sketch9.addConstraint(Sketcher.Constraint("Coincident", 10, 2, 11, 1))
sketch9.addConstraint(Sketcher.Constraint("Coincident", 11, 2, 8, 1))
sketch9.addConstraint(Sketcher.Constraint("Vertical", 0))
sketch9.addConstraint(Sketcher.Constraint("Horizontal", 1))
sketch9.addConstraint(Sketcher.Constraint("Vertical", 2))
sketch9.addConstraint(Sketcher.Constraint("Horizontal", 3))
sketch9.addConstraint(Sketcher.Constraint("Vertical", 4))
sketch9.addConstraint(Sketcher.Constraint("Horizontal", 5))
sketch9.addConstraint(Sketcher.Constraint("Vertical", 6))
sketch9.addConstraint(Sketcher.Constraint("Horizontal", 7))
sketch9.addConstraint(Sketcher.Constraint("Vertical", 8))
sketch9.addConstraint(Sketcher.Constraint("Horizontal", 9))
sketch9.addConstraint(Sketcher.Constraint("Vertical", 10))
sketch9.addConstraint(Sketcher.Constraint("Horizontal", 11))
sketch9.addConstraint(Sketcher.Constraint("Vertical", 7, 2, 8, 2))
sketch9.addConstraint(Sketcher.Constraint("Vertical", 6, 2, 9, 2))
sketch9.addConstraint(Sketcher.Constraint("Equal", 3, 5))
sketch9.addConstraint(Sketcher.Constraint("Equal", 2, 4))
sketch9.addConstraint(Sketcher.Constraint("Equal", 6, 8))
sketch9.addConstraint(Sketcher.Constraint("DistanceX", 1, 2, 1, 1, Q("10 mm")))
sketch9.addConstraint(Sketcher.Constraint("DistanceY", 0, 2, 0, 1, Q("0.5 mm")))
sketch9.addConstraint(Sketcher.Constraint("DistanceX", 4, 2, -1, 1, Q("75 mm")))
sketch9.addConstraint(Sketcher.Constraint("DistanceY", 4, 2, -1, 1, Q("50 mm")))
sketch9.addConstraint(Sketcher.Constraint("DistanceY", 0, 2, -1, 1, Q("26.400002 mm")))
sketch9.addConstraint(Sketcher.Constraint("DistanceX", 0, 2, -1, 1, Q("75.000003 mm")))
sketch9.addConstraint(Sketcher.Constraint("DistanceY", 8, 2, -1, 1, Q("36.740348 mm")))
pad6 = body.newObject("PartDesign::Pad", "Pad005")
pad6.Profile = sketch9
pad6.Length = 9
pad6.Reversed = True

doc.recompute()
